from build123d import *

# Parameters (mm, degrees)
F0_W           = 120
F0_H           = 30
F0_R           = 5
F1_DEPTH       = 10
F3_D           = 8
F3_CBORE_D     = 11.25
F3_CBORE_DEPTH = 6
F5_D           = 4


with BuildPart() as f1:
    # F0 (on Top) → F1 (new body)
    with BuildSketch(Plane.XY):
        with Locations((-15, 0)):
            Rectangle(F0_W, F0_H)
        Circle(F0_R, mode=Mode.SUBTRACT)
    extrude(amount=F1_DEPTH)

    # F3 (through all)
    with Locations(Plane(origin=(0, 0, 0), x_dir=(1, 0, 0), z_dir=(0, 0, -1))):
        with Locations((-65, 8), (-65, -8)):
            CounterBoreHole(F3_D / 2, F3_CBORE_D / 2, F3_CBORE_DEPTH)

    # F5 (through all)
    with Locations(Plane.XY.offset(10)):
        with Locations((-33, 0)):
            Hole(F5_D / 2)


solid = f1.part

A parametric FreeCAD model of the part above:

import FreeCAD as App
import Part
import Sketcher
from FreeCAD import Vector
Q = App.Units.Quantity

doc = App.newDocument("Part")
params = doc.addObject("Spreadsheet::Sheet", "Params")
for row, (alias, value) in enumerate([
    ("sketch1_diameter", "10 mm"),
    ("sketch1_width", "120 mm"),
    ("sketch1_height", "30 mm"),
    ("pad1_length", "10 mm"),
    ("sketch2_diameter", "8 mm"),
    ("hole_diameter", "8 mm"),
    ("hole_cbore_diameter", "11.25 mm"),
    ("hole_cbore_depth", "6 mm"),
    ("sketch3_diameter", "4 mm"),
    ("hole2_diameter", "4 mm"),
], start=1):
    params.set(f"A{row}", alias)
    params.set(f"B{row}", "=" + value)
    params.setAlias(f"B{row}", alias)

body = doc.addObject("PartDesign::Body", "Body")

# Sketch on XY plane
sketch1 = body.newObject("Sketcher::SketchObject", "Sketch")
sketch1.AttachmentSupport = (doc.getObject("XY_Plane"), [""])
sketch1.MapMode = "FlatFace"
sketch1.addGeometry(Part.LineSegment(Vector(-75, 15, 0), Vector(-75, -15, 0)), False)
sketch1.addGeometry(Part.LineSegment(Vector(-75, -15, 0), Vector(45, -15, 0)), False)
sketch1.addGeometry(Part.LineSegment(Vector(45, -15, 0), Vector(45, 15, 0)), False)
sketch1.addGeometry(Part.LineSegment(Vector(45, 15, 0), Vector(-75, 15, 0)), False)
sketch1.addGeometry(Part.Circle(Vector(0, 0, 0), Vector(0, 0, 1), 5), False)
sketch1.addConstraint(Sketcher.Constraint("Coincident", 0, 2, 1, 1))
sketch1.addConstraint(Sketcher.Constraint("Coincident", 1, 2, 2, 1))
sketch1.addConstraint(Sketcher.Constraint("Coincident", 2, 2, 3, 1))
sketch1.addConstraint(Sketcher.Constraint("Coincident", 3, 2, 0, 1))
sketch1.addConstraint(Sketcher.Constraint("Vertical", 0))
sketch1.addConstraint(Sketcher.Constraint("Horizontal", 1))
sketch1.addConstraint(Sketcher.Constraint("Vertical", 2))
sketch1.addConstraint(Sketcher.Constraint("Horizontal", 3))
sketch1.addConstraint(Sketcher.Constraint("Coincident", 4, 3, -1, 1))
sketch1.addConstraint(Sketcher.Constraint("Diameter", 4, Q("10 mm")))
sketch1.addConstraint(Sketcher.Constraint("DistanceX", 1, 1, 1, 2, Q("120 mm")))
sketch1.addConstraint(Sketcher.Constraint("DistanceY", 0, 2, 0, 1, Q("30 mm")))
sketch1.addConstraint(Sketcher.Constraint("DistanceX", 0, 2, -1, 1, Q("75 mm")))
sketch1.addConstraint(Sketcher.Constraint("DistanceY", 0, 2, -1, 1, Q("15 mm")))
sketch1.setExpression("Constraints[9]", "Params.sketch1_diameter")
sketch1.setExpression("Constraints[10]", "Params.sketch1_width")
sketch1.setExpression("Constraints[11]", "Params.sketch1_height")
pad1 = body.newObject("PartDesign::Pad", "Pad")
pad1.Profile = sketch1
pad1.setExpression("Length", "Params.pad1_length")

# Sketch on XY plane
sketch2 = body.newObject("Sketcher::SketchObject", "Sketch001")
sketch2.AttachmentSupport = (doc.getObject("XY_Plane"), [""])
sketch2.MapMode = "FlatFace"
sketch2.addGeometry(Part.Circle(Vector(-65, -8, 0), Vector(0, 0, 1), 4), False)
sketch2.addGeometry(Part.Circle(Vector(-65, 8, 0), Vector(0, 0, 1), 4), False)
sketch2.addConstraint(Sketcher.Constraint("Equal", 0, 1))
sketch2.addConstraint(Sketcher.Constraint("Symmetric", 0, 3, 1, 3, -1))
sketch2.addConstraint(Sketcher.Constraint("Diameter", 0, Q("8 mm")))
sketch2.addConstraint(Sketcher.Constraint("DistanceX", 0, 3, -1, 1, Q("65 mm")))
sketch2.addConstraint(Sketcher.Constraint("DistanceY", 0, 3, -1, 1, Q("8 mm")))
sketch2.setExpression("Constraints[2]", "Params.sketch2_diameter")
doc.recompute()
hole = body.newObject("PartDesign::Hole", "Hole")
hole.Profile = sketch2
hole.ThreadType = "None"
hole.setExpression("Diameter", "Params.hole_diameter")
hole.DepthType = "ThroughAll"
hole.HoleCutType = "Counterbore"
hole.setExpression("HoleCutDiameter", "Params.hole_cbore_diameter")
hole.setExpression("HoleCutDepth", "Params.hole_cbore_depth")
hole.Reversed = True

# Sketch on XY plane
sketch3 = body.newObject("Sketcher::SketchObject", "Sketch002")
sketch3.AttachmentSupport = (doc.getObject("XY_Plane"), [""])
sketch3.MapMode = "FlatFace"
sketch3.AttachmentOffset = App.Placement(Vector(0, 0, 10), App.Rotation())
sketch3.addGeometry(Part.Circle(Vector(-33, 0, 0), Vector(0, 0, 1), 2), False)
sketch3.addConstraint(Sketcher.Constraint("PointOnObject", 0, 3, -1))
sketch3.addConstraint(Sketcher.Constraint("Diameter", 0, Q("4 mm")))
sketch3.addConstraint(Sketcher.Constraint("DistanceX", 0, 3, -1, 1, Q("33 mm")))
sketch3.setExpression("Constraints[1]", "Params.sketch3_diameter")
doc.recompute()
hole2 = body.newObject("PartDesign::Hole", "Hole001")
hole2.Profile = sketch3
hole2.ThreadType = "None"
hole2.setExpression("Diameter", "Params.hole2_diameter")
hole2.DepthType = "ThroughAll"

doc.recompute()
